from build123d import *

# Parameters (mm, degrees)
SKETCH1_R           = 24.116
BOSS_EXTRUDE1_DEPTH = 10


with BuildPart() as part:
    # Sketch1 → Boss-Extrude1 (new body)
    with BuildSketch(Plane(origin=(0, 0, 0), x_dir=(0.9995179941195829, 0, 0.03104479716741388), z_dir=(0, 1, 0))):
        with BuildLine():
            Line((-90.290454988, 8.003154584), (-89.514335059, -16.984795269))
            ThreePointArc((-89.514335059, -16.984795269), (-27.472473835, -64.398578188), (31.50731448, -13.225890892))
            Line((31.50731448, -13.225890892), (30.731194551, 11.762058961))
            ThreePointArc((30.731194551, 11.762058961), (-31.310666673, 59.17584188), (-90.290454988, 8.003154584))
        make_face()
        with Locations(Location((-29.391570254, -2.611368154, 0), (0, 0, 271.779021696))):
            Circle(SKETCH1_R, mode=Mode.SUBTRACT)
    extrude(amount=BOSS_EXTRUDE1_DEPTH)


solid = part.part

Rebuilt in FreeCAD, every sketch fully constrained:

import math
import FreeCAD as App
import Part
import Sketcher
from FreeCAD import Vector

doc = App.newDocument("Part")
body = doc.addObject("PartDesign::Body", "Body")

# Sketch on XZ plane
sketch1 = body.newObject("Sketcher::SketchObject", "Sketch")
sketch1.AttachmentSupport = (doc.getObject("XZ_Plane"), [""])
sketch1.MapMode = "FlatFace"
sketch1.addGeometry([
    Part.LineSegment(Vector(-90, -11, 0), Vector(-90, 14, 0)),  # 0
    Part.ArcOfCircle(Part.Circle(Vector(-29, 2, 0), Vector(0, 0, 1), 62), math.radians(12), math.radians(168)),  # 1
    Part.LineSegment(Vector(31, 14, 0), Vector(31, -11, 0)),  # 2
    Part.ArcOfCircle(Part.Circle(Vector(-29, 2, 0), Vector(0, 0, 1), 62), math.radians(-168), math.radians(-12)),  # 3
    Part.Circle(Vector(-29, 2, 0), Vector(0, 0, 1), 24),  # 4
], False)
sketch1.addConstraint([
    Sketcher.Constraint("Coincident", 0, 2, 1, 2),
    Sketcher.Constraint("Coincident", 1, 1, 2, 1),
    Sketcher.Constraint("Coincident", 2, 2, 3, 2),
    Sketcher.Constraint("Coincident", 3, 1, 0, 1),
    Sketcher.Constraint("Vertical", 0),
    Sketcher.Constraint("Vertical", 2),
    Sketcher.Constraint("Coincident", 3, 3, 1, 3),
    Sketcher.Constraint("Coincident", 4, 3, 1, 3),
    Sketcher.Constraint("Equal", 1, 3),
    Sketcher.Constraint("Horizontal", 0, 2, 1, 1),
    Sketcher.Constraint("DistanceY", 0, 1, 0, 2, 25.0),
    Sketcher.Constraint("Diameter", 4, 48.232),
    Sketcher.Constraint("Radius", 1, 61.817006),
    Sketcher.Constraint("DistanceX", 0, 2, -1, 1, 89.998478),
    Sketcher.Constraint("DistanceY", -1, 1, 1, 3, 1.697654),
])
pad1 = body.newObject("PartDesign::Pad", "Pad")
pad1.Profile = sketch1
pad1.Length = 10
pad1.Reversed = True

doc.recompute()
